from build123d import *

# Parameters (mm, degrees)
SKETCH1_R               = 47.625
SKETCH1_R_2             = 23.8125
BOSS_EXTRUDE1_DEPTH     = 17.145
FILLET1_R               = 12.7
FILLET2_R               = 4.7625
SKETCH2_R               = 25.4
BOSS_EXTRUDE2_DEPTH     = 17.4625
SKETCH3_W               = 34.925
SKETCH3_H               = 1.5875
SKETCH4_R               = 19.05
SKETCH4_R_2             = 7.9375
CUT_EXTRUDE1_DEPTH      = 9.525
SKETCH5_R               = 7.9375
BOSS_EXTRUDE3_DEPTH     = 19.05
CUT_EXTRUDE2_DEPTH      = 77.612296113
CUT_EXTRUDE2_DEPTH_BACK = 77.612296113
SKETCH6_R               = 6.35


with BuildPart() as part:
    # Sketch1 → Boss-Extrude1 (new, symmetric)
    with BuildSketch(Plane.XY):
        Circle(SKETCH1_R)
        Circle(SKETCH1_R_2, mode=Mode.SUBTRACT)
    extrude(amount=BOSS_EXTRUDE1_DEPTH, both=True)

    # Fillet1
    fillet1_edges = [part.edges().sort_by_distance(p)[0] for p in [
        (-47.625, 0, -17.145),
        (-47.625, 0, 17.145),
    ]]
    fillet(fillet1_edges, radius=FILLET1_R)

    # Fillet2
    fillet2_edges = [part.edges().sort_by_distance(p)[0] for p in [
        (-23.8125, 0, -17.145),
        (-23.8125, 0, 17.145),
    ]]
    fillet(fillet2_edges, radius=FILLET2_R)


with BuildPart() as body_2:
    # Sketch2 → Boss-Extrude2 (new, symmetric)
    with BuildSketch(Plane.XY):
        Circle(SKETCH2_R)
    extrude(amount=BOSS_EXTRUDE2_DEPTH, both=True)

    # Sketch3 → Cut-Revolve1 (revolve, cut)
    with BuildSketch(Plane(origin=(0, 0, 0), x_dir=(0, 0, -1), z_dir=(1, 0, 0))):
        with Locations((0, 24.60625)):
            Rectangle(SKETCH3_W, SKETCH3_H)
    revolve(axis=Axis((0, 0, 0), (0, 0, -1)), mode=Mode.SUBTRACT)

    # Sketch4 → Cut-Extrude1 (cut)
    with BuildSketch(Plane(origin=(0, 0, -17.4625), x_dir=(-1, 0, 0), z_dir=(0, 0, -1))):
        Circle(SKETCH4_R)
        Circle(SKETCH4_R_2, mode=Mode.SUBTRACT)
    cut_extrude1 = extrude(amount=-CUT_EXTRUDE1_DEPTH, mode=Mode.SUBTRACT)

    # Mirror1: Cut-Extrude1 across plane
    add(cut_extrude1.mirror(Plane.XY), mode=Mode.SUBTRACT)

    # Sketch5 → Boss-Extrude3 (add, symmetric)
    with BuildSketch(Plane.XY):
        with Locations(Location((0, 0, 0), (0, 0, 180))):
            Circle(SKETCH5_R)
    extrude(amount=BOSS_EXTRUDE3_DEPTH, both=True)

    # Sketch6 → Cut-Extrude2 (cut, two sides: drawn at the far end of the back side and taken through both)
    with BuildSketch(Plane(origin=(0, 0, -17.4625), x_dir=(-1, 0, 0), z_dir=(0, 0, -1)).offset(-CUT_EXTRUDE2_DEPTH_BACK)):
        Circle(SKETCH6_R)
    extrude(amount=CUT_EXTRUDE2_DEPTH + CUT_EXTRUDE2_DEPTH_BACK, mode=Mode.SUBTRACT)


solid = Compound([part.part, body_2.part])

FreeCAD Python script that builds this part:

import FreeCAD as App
import Part
import Sketcher

V = App.Vector
Q = App.Units.Quantity


def edges_at(feature, points):
    """Names of the edges that pass closest to the given points."""
    edges = feature.Shape.Edges
    near = lambda p: min(range(len(edges)), key=lambda i: edges[i].distToShape(Part.Vertex(*p))[0])
    return sorted({f"Edge{near(p) + 1}" for p in points})


def add_polygon(sketch, points):
    """Adds a closed chain of lines whose ends are joined by coincident constraints."""
    first, n = sketch.GeometryCount, len(points)
    for a, b in zip(points, points[1:] + points[:1]):
        sketch.addGeometry(Part.LineSegment(App.Vector(*a, 0), App.Vector(*b, 0)), False)
    for i in range(n):
        sketch.addConstraint(Sketcher.Constraint("Coincident", first + i, 2, first + (i + 1) % n, 1))

doc = App.newDocument("Part")
body = doc.addObject("PartDesign::Body", "Body")

sketch1 = body.newObject("Sketcher::SketchObject", "Sketch")
sketch1.AttachmentSupport = (doc.getObject("XY_Plane"), [""])
sketch1.MapMode = "FlatFace"
sketch1.addGeometry([
    Part.Circle(V(0, 0, 0), V(0, 0, 1), 47.625),
    Part.Circle(V(0, 0, 0), V(0, 0, 1), 23.8125),
], False)
sketch1.addConstraint([
    Sketcher.Constraint("Coincident", 0, 3, -1, 1),
    Sketcher.Constraint("Coincident", 1, 3, -1, 1),
    Sketcher.Constraint("Diameter", 0, Q("3.75 in")),
    Sketcher.Constraint("Diameter", 1, Q("1.875 in")),
])
pad1 = body.newObject("PartDesign::Pad", "Pad")
pad1.Profile = sketch1
pad1.Length = Q("1.35 in")
pad1.Midplane = True
doc.recompute()

fillet = body.newObject("PartDesign::Fillet", "Fillet")
fillet.Base = (pad1, edges_at(pad1, [(-47.625, 0, -17.145), (-47.625, 0, 17.145)]))
fillet.Radius = Q("0.5 in")
doc.recompute()

fillet2 = body.newObject("PartDesign::Fillet", "Fillet001")
fillet2.Base = (fillet, edges_at(fillet, [(-23.812, 0, -17.145), (-23.812, 0, 17.145)]))
fillet2.Radius = Q("0.1875 in")
body2 = doc.addObject("PartDesign::Body", "Body001")

sketch2 = body2.newObject("Sketcher::SketchObject", "Sketch001")
sketch2.AttachmentSupport = (doc.getObject("XY_Plane001"), [""])
sketch2.MapMode = "FlatFace"
sketch2.addGeometry(Part.Circle(V(0, 0, 0), V(0, 0, 1), 25.4), False)
sketch2.addConstraint([
    Sketcher.Constraint("Coincident", 0, 3, -1, 1),
    Sketcher.Constraint("Diameter", 0, Q("2 in")),
])
pad2 = body2.newObject("PartDesign::Pad", "Pad001")
pad2.Profile = sketch2
pad2.Length = Q("1.375 in")
pad2.Midplane = True

sketch3 = body2.newObject("Sketcher::SketchObject", "Sketch002")
sketch3.AttachmentSupport = (doc.getObject("YZ_Plane001"), [""])
sketch3.MapMode = "FlatFace"
add_polygon(sketch3, [(25.4, 17.4625), (23.8125, 17.4625), (23.8125, -17.4625), (25.4, -17.4625)])
sketch3.addConstraint([
    Sketcher.Constraint("Horizontal", 0),
    Sketcher.Constraint("Vertical", 1),
    Sketcher.Constraint("Horizontal", 2),
    Sketcher.Constraint("Vertical", 3),
    Sketcher.Constraint("DistanceX", -1, 1, 2, 2, Q("1 in")),
    Sketcher.Constraint("DistanceX", 0, 2, 0, 1, Q("0.0625 in")),
    Sketcher.Constraint("DistanceY", 1, 2, 1, 1, Q("1.375 in")),
    Sketcher.Constraint("DistanceY", -1, 1, 0, 2, Q("0.6875 in")),
])
groove = body2.newObject("PartDesign::Groove", "Groove")
groove.Profile = sketch3
groove.ReferenceAxis = (sketch3, ["V_Axis"])
groove.Angle = 360

sketch4 = body2.newObject("Sketcher::SketchObject", "Sketch003")
sketch4.AttachmentSupport = (doc.getObject("XY_Plane001"), [""])
sketch4.MapMode = "FlatFace"
sketch4.AttachmentOffset = App.Placement(V(0, 0, -0.6875 * 25.4), App.Rotation())
sketch4.addGeometry([
    Part.Circle(V(0, 0, 0), V(0, 0, 1), 19.05),
    Part.Circle(V(0, 0, 0), V(0, 0, 1), 7.9375),
], False)
sketch4.addConstraint([
    Sketcher.Constraint("Coincident", 0, 3, -1, 1),
    Sketcher.Constraint("Coincident", 1, 3, -1, 1),
    Sketcher.Constraint("Diameter", 0, Q("1.5 in")),
    Sketcher.Constraint("Diameter", 1, Q("0.625 in")),
])
pocket1 = body2.newObject("PartDesign::Pocket", "Pocket")
pocket1.Profile = sketch4
pocket1.Length = Q("0.375 in")
pocket1.Reversed = True
doc.recompute()

mirrored = body2.newObject("PartDesign::Mirrored", "Mirrored")
mirrored.Originals = [pocket1]
mirrored.MirrorPlane = (doc.getObject("XY_Plane001"), [""])
body2.Tip = mirrored

sketch5 = body2.newObject("Sketcher::SketchObject", "Sketch004")
sketch5.AttachmentSupport = (doc.getObject("XY_Plane001"), [""])
sketch5.MapMode = "FlatFace"
sketch5.addGeometry(Part.Circle(V(0, 0, 0), V(0, 0, 1), 7.9375), False)
sketch5.addConstraint([
    Sketcher.Constraint("Coincident", 0, 3, -1, 1),
    Sketcher.Constraint("Diameter", 0, Q("0.625 in")),
])
pad3 = body2.newObject("PartDesign::Pad", "Pad002")
pad3.Profile = sketch5
pad3.Length = Q("1.5 in")
pad3.Midplane = True

sketch6 = body2.newObject("Sketcher::SketchObject", "Sketch005")
sketch6.AttachmentSupport = (doc.getObject("XY_Plane001"), [""])
sketch6.MapMode = "FlatFace"
sketch6.AttachmentOffset = App.Placement(V(0, 0, -0.6875 * 25.4), App.Rotation())
sketch6.addGeometry(Part.Circle(V(0, 0, 0), V(0, 0, 1), 6.35), False)
sketch6.addConstraint([
    Sketcher.Constraint("Coincident", 0, 3, -1, 1),
    Sketcher.Constraint("Diameter", 0, Q("0.5 in")),
])
pocket2 = body2.newObject("PartDesign::Pocket", "Pocket001")
pocket2.Profile = sketch6
pocket2.Type = "ThroughAll"
pocket2.Midplane = True

doc.recompute()
